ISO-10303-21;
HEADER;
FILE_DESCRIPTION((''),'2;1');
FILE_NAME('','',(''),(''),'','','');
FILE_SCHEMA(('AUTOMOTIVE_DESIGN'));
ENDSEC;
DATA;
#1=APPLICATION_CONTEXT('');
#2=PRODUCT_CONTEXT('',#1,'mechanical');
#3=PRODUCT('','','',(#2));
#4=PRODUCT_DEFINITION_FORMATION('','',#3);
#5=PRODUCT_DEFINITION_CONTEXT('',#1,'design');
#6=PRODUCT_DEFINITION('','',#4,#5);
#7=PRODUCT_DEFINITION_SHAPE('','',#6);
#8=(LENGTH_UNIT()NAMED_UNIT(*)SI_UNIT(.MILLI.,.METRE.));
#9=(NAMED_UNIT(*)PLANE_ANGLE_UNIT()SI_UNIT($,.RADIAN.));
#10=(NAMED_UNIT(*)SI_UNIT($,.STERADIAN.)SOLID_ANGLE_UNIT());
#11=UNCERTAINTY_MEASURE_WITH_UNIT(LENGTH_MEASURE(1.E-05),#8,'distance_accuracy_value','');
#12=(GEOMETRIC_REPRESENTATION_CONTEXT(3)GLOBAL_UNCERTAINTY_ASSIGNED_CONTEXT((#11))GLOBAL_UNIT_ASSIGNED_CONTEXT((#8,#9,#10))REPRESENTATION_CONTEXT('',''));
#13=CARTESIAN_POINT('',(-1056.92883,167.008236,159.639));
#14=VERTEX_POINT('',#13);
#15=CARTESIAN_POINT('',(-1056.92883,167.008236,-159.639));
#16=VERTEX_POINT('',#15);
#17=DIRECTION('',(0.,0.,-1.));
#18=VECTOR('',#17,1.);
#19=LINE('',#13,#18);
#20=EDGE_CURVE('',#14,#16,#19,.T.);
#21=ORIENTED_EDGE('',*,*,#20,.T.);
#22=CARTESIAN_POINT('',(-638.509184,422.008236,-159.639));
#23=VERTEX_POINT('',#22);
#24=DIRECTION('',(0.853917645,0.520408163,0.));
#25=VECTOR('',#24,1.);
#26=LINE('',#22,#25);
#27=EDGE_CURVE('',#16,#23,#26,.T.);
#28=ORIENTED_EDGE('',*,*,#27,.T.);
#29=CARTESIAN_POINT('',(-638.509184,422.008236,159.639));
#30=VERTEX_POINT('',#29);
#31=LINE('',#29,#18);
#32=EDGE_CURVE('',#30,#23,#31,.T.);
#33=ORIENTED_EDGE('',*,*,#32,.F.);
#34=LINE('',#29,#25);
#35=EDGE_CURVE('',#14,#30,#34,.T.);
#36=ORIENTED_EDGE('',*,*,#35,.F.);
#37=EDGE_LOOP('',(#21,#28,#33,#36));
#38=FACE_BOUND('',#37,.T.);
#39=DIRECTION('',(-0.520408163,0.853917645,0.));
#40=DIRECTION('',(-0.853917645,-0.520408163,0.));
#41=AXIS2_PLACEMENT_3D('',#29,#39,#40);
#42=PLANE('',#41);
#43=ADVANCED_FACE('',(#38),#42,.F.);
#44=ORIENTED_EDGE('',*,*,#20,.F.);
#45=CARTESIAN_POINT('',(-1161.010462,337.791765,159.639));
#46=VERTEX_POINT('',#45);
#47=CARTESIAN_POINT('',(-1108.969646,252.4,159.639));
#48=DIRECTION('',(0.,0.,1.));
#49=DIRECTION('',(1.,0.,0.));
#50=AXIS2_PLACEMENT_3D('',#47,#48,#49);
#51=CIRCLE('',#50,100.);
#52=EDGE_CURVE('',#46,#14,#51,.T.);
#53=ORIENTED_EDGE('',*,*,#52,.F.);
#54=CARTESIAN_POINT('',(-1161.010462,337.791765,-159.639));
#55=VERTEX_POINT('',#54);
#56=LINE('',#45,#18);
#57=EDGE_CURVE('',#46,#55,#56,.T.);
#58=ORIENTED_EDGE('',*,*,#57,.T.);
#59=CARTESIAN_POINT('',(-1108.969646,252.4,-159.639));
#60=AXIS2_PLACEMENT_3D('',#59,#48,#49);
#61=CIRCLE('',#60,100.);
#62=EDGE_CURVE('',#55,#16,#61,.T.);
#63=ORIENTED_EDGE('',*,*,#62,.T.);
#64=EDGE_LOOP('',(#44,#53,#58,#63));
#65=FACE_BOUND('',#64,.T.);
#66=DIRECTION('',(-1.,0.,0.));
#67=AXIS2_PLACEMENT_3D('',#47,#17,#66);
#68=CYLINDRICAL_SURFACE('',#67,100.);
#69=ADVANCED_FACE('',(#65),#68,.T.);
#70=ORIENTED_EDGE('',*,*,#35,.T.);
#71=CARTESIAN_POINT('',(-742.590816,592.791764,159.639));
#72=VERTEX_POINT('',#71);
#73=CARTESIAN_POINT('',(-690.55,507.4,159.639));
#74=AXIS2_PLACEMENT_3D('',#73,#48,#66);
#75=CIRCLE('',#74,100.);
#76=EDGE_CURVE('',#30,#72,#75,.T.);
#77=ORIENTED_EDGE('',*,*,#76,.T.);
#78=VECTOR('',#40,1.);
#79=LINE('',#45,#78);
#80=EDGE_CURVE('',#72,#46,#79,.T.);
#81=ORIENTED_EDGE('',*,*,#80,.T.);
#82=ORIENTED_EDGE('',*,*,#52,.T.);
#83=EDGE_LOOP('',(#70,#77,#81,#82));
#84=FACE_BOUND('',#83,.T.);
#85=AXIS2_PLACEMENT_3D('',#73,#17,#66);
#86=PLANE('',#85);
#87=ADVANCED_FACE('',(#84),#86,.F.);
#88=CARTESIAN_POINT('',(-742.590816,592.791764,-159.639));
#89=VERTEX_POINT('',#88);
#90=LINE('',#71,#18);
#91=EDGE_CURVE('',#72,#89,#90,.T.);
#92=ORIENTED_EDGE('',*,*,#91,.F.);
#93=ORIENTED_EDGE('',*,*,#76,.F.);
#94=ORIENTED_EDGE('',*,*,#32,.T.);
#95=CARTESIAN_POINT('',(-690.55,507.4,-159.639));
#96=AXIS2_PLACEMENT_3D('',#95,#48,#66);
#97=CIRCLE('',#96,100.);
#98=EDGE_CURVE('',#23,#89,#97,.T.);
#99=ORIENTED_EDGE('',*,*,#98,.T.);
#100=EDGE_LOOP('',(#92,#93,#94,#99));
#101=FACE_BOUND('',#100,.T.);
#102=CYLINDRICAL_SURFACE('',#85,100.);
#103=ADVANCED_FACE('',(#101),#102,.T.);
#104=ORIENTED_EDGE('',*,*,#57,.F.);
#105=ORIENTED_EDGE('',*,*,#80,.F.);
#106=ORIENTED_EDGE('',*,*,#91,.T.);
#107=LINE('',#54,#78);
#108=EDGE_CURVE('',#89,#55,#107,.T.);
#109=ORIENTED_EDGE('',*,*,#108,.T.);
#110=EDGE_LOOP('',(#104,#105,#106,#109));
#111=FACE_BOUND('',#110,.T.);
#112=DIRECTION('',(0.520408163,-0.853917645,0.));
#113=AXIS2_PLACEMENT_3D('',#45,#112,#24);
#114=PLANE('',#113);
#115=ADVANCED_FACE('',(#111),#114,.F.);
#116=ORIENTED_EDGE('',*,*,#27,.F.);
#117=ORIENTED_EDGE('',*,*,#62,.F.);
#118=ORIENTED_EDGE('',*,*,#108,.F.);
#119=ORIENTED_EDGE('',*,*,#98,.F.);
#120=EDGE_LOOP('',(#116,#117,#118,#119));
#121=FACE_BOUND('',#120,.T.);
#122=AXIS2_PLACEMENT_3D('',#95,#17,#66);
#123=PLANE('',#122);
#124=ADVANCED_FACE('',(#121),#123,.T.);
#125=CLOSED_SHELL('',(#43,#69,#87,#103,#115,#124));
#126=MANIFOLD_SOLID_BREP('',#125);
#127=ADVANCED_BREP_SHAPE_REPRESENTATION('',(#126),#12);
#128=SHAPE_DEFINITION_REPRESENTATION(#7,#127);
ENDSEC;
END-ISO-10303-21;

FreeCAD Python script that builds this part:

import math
import FreeCAD as App
import Part
import Sketcher
from FreeCAD import Vector

doc = App.newDocument("Part")
params = doc.addObject("Spreadsheet::Sheet", "Params")
for row, (alias, value) in enumerate([
    ("sketch1_radius", "100 mm"),
    ("sketch1_length", "490 mm"),
    ("pad1_length", "319.278 mm"),
], start=1):
    params.set(f"A{row}", alias)
    params.set(f"B{row}", "=" + value)
    params.setAlias(f"B{row}", alias)

body = doc.addObject("PartDesign::Body", "Body")

# Sketch on XY plane
sketch1 = body.newObject("Sketcher::SketchObject", "Sketch")
sketch1.AttachmentSupport = (doc.getObject("XY_Plane"), [""])
sketch1.MapMode = "FlatFace"
sketch1.addGeometry([
    Part.LineSegment(Vector(-743, 593, 0), Vector(-1161, 338, 0)),
    Part.ArcOfCircle(Part.Circle(Vector(-1109, 252, 0), Vector(0, 0, 1), 100), math.radians(121), math.radians(301)),
    Part.LineSegment(Vector(-1057, 167, 0), Vector(-639, 422, 0)),
    Part.ArcOfCircle(Part.Circle(Vector(-691, 507, 0), Vector(0, 0, 1), 100), math.radians(-59), math.radians(121)),
], False)
sketch1.addConstraint([
    Sketcher.Constraint("Tangent", 0, 2, 1, 1),
    Sketcher.Constraint("Tangent", 1, 2, 2, 1),
    Sketcher.Constraint("Tangent", 2, 2, 3, 1),
    Sketcher.Constraint("Tangent", 3, 2, 0, 1),
    Sketcher.Constraint("Equal", 1, 3),
    Sketcher.Constraint("Radius", 1, 100.0),
    Sketcher.Constraint("Distance", 0, 490.0),
    Sketcher.Constraint("DistanceY", 1, 3, 3, 3, 255.0),
    Sketcher.Constraint("DistanceY", -1, 1, 1, 3, 252.4),
    Sketcher.Constraint("DistanceX", 3, 3, -1, 1, 690.55),
])
sketch1.setExpression("Constraints[5]", "Params.sketch1_radius")
sketch1.setExpression("Constraints[6]", "Params.sketch1_length")
pad1 = body.newObject("PartDesign::Pad", "Pad")
pad1.Profile = sketch1
pad1.setExpression("Length", "Params.pad1_length")
pad1.Midplane = True

doc.recompute()
